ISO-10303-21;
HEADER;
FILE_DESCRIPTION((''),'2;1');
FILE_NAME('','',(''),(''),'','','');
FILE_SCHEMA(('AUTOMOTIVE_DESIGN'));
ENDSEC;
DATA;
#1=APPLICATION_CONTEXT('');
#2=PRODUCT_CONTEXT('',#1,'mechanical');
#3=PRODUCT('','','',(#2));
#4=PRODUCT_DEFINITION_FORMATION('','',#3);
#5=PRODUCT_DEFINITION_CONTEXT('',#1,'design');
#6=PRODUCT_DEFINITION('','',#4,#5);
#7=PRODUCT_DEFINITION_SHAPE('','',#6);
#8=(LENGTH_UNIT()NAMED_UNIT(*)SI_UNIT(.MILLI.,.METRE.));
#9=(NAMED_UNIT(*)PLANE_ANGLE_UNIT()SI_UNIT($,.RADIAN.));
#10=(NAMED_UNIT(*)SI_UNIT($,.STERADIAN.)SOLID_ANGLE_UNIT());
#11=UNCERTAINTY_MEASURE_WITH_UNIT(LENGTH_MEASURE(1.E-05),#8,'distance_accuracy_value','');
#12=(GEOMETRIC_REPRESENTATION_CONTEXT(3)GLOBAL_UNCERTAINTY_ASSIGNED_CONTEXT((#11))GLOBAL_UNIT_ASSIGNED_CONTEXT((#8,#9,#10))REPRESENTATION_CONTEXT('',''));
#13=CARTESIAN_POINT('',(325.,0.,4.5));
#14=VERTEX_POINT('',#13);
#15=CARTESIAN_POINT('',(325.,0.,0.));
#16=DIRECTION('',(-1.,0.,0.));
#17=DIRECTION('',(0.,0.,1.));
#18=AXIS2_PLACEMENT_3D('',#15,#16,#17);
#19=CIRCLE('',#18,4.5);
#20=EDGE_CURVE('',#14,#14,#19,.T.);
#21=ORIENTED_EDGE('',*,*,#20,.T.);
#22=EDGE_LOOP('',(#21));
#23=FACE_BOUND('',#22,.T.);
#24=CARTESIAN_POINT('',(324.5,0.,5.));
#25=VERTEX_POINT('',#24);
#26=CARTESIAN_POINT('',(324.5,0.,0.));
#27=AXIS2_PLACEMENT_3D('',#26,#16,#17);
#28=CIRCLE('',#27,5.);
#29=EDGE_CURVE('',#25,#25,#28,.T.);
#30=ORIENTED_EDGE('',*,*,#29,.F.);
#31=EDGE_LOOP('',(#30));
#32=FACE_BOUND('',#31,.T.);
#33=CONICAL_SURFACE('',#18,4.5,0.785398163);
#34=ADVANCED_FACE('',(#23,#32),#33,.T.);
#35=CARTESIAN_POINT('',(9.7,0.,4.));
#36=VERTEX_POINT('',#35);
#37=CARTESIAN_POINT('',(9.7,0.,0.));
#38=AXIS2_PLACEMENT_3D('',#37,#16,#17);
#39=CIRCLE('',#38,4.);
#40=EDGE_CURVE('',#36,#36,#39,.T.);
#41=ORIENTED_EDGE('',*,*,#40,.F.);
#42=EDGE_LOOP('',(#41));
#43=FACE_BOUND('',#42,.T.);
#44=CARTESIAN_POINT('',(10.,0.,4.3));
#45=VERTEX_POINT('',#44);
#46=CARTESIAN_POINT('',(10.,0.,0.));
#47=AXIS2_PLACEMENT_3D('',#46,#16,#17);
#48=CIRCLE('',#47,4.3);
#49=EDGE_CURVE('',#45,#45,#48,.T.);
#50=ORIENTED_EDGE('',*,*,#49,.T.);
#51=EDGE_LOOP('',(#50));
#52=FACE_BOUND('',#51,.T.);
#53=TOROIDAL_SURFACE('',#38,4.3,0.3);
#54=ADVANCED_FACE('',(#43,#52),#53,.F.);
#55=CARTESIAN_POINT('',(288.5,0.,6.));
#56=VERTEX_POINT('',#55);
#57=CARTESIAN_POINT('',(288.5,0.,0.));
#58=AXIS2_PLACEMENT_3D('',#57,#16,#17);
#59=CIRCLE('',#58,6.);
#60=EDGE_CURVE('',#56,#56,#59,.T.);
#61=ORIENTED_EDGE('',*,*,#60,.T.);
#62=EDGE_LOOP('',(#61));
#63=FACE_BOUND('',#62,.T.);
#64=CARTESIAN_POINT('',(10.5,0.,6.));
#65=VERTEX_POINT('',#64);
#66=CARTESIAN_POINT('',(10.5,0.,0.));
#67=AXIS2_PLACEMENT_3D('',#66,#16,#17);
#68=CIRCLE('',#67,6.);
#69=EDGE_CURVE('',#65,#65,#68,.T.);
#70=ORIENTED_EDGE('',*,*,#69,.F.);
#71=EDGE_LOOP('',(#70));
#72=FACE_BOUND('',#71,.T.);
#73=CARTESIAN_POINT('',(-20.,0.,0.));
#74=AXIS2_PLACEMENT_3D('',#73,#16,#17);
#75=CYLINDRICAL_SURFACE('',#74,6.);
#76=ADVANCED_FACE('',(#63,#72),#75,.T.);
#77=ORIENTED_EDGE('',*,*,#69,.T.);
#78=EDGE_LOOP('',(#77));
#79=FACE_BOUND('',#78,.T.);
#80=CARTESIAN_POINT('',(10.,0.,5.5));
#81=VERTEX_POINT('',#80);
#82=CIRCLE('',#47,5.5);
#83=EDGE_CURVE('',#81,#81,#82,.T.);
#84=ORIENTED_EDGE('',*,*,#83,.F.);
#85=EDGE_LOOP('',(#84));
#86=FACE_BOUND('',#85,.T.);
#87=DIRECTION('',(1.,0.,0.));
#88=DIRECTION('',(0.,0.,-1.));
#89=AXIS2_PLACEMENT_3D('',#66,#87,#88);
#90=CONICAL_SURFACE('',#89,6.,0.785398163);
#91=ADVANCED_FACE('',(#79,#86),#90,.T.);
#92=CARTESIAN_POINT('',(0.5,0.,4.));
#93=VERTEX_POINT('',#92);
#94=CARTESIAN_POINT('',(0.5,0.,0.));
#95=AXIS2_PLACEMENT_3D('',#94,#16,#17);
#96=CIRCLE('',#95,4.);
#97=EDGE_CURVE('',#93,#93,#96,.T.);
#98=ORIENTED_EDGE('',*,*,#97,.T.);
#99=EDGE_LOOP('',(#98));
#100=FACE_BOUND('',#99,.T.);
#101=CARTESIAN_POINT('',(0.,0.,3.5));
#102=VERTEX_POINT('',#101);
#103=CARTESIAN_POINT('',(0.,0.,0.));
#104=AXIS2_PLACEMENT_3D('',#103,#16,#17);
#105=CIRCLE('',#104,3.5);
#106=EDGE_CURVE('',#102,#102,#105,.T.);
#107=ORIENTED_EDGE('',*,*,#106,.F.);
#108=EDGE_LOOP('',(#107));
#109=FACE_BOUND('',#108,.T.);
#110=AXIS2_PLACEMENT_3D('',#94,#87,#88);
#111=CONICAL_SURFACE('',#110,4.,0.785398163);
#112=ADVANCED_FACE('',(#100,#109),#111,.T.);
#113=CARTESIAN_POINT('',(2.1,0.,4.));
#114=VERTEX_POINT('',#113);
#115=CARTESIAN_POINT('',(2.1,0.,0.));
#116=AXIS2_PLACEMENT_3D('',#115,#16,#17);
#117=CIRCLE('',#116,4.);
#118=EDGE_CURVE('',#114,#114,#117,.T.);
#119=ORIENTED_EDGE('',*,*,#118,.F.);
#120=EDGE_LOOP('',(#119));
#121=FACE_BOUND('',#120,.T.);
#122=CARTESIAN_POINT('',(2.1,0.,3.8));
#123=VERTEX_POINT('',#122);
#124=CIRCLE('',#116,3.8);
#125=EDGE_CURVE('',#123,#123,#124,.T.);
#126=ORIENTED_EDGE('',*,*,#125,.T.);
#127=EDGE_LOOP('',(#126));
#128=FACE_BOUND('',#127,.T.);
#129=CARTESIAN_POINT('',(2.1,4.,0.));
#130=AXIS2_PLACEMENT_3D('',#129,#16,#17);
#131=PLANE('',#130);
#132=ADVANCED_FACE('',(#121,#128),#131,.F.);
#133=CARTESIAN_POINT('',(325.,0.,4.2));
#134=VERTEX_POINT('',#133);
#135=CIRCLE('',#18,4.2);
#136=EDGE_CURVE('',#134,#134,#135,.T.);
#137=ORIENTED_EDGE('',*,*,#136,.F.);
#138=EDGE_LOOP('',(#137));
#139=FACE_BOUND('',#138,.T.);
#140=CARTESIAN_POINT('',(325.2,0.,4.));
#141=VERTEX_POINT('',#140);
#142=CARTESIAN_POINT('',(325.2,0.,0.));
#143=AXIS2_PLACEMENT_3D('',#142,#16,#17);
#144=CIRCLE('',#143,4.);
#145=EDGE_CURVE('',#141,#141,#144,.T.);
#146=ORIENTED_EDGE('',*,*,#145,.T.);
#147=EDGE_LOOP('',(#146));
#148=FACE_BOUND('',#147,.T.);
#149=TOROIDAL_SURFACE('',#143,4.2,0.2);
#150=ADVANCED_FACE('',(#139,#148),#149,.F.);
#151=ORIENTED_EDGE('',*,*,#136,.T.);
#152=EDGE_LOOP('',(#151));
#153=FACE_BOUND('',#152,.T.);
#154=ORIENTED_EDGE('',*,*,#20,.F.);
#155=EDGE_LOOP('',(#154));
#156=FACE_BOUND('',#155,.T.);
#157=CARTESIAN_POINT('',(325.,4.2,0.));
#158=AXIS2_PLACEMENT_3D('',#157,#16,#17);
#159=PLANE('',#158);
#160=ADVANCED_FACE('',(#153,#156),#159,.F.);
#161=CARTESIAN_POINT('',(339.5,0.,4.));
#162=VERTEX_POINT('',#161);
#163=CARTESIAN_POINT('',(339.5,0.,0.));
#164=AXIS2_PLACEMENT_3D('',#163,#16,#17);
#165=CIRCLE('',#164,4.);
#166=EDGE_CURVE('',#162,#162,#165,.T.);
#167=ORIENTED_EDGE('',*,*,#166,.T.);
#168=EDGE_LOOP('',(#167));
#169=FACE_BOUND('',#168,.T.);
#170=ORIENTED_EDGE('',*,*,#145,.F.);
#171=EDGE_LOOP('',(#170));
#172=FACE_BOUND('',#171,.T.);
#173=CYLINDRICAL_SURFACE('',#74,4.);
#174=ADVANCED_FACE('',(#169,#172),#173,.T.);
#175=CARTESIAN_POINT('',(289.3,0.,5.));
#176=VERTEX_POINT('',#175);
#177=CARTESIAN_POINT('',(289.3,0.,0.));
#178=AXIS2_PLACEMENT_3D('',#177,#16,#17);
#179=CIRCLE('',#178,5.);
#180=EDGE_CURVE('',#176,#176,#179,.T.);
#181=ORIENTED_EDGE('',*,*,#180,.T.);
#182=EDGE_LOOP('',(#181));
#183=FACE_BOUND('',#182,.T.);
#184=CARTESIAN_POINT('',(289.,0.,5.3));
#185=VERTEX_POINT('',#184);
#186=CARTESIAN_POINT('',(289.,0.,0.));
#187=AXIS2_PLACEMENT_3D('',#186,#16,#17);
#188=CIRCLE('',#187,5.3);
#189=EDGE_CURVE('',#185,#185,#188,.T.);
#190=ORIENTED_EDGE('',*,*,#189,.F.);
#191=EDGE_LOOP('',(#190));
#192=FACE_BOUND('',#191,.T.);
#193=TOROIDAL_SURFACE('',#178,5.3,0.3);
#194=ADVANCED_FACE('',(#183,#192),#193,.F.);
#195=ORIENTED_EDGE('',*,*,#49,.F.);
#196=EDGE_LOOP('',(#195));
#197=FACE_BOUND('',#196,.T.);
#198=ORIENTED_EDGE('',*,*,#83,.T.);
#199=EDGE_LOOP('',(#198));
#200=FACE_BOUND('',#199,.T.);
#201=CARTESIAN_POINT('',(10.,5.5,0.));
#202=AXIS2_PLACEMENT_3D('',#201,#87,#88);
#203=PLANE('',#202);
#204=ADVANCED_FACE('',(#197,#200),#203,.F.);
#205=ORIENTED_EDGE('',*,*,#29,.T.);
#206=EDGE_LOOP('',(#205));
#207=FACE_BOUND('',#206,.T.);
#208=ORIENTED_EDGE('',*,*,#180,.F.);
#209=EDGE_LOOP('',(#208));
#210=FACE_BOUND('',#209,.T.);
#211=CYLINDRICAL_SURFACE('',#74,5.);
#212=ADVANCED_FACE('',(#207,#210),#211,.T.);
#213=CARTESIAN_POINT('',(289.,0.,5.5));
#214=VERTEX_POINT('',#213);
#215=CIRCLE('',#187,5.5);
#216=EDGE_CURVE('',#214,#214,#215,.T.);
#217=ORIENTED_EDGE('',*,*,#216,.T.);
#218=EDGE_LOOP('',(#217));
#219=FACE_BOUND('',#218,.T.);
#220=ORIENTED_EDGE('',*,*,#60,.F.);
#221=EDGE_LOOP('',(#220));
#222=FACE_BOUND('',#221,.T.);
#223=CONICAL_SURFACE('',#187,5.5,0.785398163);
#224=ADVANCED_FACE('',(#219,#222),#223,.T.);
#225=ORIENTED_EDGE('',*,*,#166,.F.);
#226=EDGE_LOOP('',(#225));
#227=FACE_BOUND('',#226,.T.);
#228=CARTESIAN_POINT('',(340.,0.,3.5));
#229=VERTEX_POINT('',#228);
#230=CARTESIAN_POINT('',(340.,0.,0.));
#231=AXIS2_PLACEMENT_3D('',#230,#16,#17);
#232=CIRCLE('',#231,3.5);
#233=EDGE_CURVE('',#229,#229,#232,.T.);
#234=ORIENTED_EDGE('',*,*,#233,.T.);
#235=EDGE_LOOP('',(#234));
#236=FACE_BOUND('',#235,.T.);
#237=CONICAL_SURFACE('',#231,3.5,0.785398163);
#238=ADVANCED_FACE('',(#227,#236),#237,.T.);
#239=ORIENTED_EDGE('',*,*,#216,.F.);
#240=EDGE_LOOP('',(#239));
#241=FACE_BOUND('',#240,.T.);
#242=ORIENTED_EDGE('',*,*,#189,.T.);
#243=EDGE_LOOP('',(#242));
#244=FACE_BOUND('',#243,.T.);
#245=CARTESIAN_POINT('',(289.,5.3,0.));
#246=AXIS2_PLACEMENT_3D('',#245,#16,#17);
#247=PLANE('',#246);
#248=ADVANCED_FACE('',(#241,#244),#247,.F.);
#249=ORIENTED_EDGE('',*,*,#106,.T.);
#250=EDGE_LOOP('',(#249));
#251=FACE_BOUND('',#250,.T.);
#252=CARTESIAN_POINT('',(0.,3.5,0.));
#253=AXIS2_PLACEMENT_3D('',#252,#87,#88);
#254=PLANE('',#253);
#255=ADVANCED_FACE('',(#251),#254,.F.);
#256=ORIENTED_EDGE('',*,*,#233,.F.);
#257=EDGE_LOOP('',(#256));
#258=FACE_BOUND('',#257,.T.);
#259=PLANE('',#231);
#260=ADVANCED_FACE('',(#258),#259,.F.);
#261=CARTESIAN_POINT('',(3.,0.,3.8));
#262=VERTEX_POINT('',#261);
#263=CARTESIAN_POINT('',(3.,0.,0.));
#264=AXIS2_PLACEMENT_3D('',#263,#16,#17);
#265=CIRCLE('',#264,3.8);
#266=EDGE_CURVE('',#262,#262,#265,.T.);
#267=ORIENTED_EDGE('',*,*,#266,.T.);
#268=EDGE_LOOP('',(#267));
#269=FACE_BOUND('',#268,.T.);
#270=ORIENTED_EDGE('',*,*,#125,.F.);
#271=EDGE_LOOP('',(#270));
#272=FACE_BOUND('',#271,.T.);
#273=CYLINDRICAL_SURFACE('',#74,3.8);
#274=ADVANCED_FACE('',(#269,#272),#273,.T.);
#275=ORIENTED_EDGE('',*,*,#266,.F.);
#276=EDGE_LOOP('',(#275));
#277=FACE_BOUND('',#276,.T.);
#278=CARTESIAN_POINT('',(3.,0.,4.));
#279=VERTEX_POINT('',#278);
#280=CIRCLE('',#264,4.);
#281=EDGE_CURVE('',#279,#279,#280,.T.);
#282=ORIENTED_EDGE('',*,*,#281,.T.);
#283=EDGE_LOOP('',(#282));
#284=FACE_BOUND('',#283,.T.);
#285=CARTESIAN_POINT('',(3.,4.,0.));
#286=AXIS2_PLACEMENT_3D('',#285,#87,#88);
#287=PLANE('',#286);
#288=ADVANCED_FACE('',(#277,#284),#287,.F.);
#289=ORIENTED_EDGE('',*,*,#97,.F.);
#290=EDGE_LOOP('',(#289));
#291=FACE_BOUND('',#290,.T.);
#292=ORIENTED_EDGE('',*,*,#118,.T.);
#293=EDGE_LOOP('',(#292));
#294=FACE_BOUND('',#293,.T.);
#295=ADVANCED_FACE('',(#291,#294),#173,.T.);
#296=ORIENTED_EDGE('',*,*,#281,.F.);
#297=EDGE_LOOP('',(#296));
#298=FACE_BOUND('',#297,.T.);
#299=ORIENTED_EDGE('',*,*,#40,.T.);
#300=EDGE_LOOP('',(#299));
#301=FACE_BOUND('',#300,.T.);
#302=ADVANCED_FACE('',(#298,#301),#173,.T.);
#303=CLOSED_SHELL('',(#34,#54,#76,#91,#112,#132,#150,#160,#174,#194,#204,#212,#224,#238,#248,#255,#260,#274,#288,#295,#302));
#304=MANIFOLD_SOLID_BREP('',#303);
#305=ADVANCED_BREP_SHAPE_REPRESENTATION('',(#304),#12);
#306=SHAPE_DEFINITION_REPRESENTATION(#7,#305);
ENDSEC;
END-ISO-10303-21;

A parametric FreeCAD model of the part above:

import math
import FreeCAD as App
import Part
import Sketcher

V = App.Vector

doc = App.newDocument("Part")
body = doc.addObject("PartDesign::Body", "Body")

# Sketch on XY plane
sketch1 = body.newObject("Sketcher::SketchObject", "Sketch")
sketch1.AttachmentSupport = (doc.getObject("XY_Plane"), [""])
sketch1.MapMode = "FlatFace"
sketch1.addGeometry(Part.LineSegment(V(2.1, 3.8, 0), V(2.1, 4, 0)), False)
sketch1.addGeometry(Part.LineSegment(V(2.1, 4, 0), V(0.5, 4, 0)), False)
sketch1.addGeometry(Part.LineSegment(V(0.5, 4, 0), V(0, 3.5, 0)), False)
sketch1.addGeometry(Part.LineSegment(V(0, 3.5, 0), V(0, 0, 0)), False)
sketch1.addGeometry(Part.LineSegment(V(0, 0, 0), V(340, 0, 0)), False)
sketch1.addGeometry(Part.LineSegment(V(340, 0, 0), V(340, 3.5, 0)), False)
sketch1.addGeometry(Part.LineSegment(V(340, 3.5, 0), V(339.5, 4, 0)), False)
sketch1.addGeometry(Part.LineSegment(V(339.5, 4, 0), V(325.2, 4, 0)), False)
sketch1.addGeometry(Part.ArcOfCircle(Part.Circle(V(325.2, 4.2, 0), V(0, 0, 1), 0.2), math.radians(-180), math.radians(-90)), False)
sketch1.addGeometry(Part.LineSegment(V(325, 4.2, 0), V(325, 4.5, 0)), False)
sketch1.addGeometry(Part.LineSegment(V(325, 4.5, 0), V(324.5, 5, 0)), False)
sketch1.addGeometry(Part.LineSegment(V(324.5, 5, 0), V(289.3, 5, 0)), False)
sketch1.addGeometry(Part.ArcOfCircle(Part.Circle(V(289.3, 5.3, 0), V(0, 0, 1), 0.3), math.radians(-180), math.radians(-90)), False)
sketch1.addGeometry(Part.LineSegment(V(289, 5.3, 0), V(289, 5.5, 0)), False)
sketch1.addGeometry(Part.LineSegment(V(289, 5.5, 0), V(288.5, 6, 0)), False)
sketch1.addGeometry(Part.LineSegment(V(288.5, 6, 0), V(10.5, 6, 0)), False)
sketch1.addGeometry(Part.LineSegment(V(10.5, 6, 0), V(10, 5.5, 0)), False)
sketch1.addGeometry(Part.LineSegment(V(10, 5.5, 0), V(10, 4.3, 0)), False)
sketch1.addGeometry(Part.ArcOfCircle(Part.Circle(V(9.7, 4.3, 0), V(0, 0, 1), 0.3), math.radians(-90), math.radians(0)), False)
sketch1.addGeometry(Part.LineSegment(V(9.7, 4, 0), V(3, 4, 0)), False)
sketch1.addGeometry(Part.LineSegment(V(3, 4, 0), V(3, 3.8, 0)), False)
sketch1.addGeometry(Part.LineSegment(V(3, 3.8, 0), V(2.1, 3.8, 0)), False)
sketch1.addConstraint(Sketcher.Constraint("Coincident", 0, 2, 1, 1))
sketch1.addConstraint(Sketcher.Constraint("Coincident", 1, 2, 2, 1))
sketch1.addConstraint(Sketcher.Constraint("Coincident", 2, 2, 3, 1))
sketch1.addConstraint(Sketcher.Constraint("Coincident", 3, 2, 4, 1))
sketch1.addConstraint(Sketcher.Constraint("Coincident", 4, 2, 5, 1))
sketch1.addConstraint(Sketcher.Constraint("Coincident", 5, 2, 6, 1))
sketch1.addConstraint(Sketcher.Constraint("Coincident", 6, 2, 7, 1))
sketch1.addConstraint(Sketcher.Constraint("Tangent", 7, 2, 8, 2))
sketch1.addConstraint(Sketcher.Constraint("Tangent", 8, 1, 9, 1))
sketch1.addConstraint(Sketcher.Constraint("Coincident", 9, 2, 10, 1))
sketch1.addConstraint(Sketcher.Constraint("Coincident", 10, 2, 11, 1))
sketch1.addConstraint(Sketcher.Constraint("Tangent", 11, 2, 12, 2))
sketch1.addConstraint(Sketcher.Constraint("Tangent", 12, 1, 13, 1))
sketch1.addConstraint(Sketcher.Constraint("Coincident", 13, 2, 14, 1))
sketch1.addConstraint(Sketcher.Constraint("Coincident", 14, 2, 15, 1))
sketch1.addConstraint(Sketcher.Constraint("Coincident", 15, 2, 16, 1))
sketch1.addConstraint(Sketcher.Constraint("Coincident", 16, 2, 17, 1))
sketch1.addConstraint(Sketcher.Constraint("Tangent", 17, 2, 18, 2))
sketch1.addConstraint(Sketcher.Constraint("Tangent", 18, 1, 19, 1))
sketch1.addConstraint(Sketcher.Constraint("Coincident", 19, 2, 20, 1))
sketch1.addConstraint(Sketcher.Constraint("Coincident", 20, 2, 21, 1))
sketch1.addConstraint(Sketcher.Constraint("Coincident", 21, 2, 0, 1))
sketch1.addConstraint(Sketcher.Constraint("Vertical", 0))
sketch1.addConstraint(Sketcher.Constraint("Horizontal", 1))
sketch1.addConstraint(Sketcher.Constraint("Vertical", 3))
sketch1.addConstraint(Sketcher.Constraint("Horizontal", 4))
sketch1.addConstraint(Sketcher.Constraint("Vertical", 5))
sketch1.addConstraint(Sketcher.Constraint("Horizontal", 7))
sketch1.addConstraint(Sketcher.Constraint("Vertical", 9))
sketch1.addConstraint(Sketcher.Constraint("Horizontal", 11))
sketch1.addConstraint(Sketcher.Constraint("Vertical", 13))
sketch1.addConstraint(Sketcher.Constraint("Horizontal", 15))
sketch1.addConstraint(Sketcher.Constraint("Vertical", 17))
sketch1.addConstraint(Sketcher.Constraint("Horizontal", 19))
sketch1.addConstraint(Sketcher.Constraint("Vertical", 20))
sketch1.addConstraint(Sketcher.Constraint("Horizontal", 21))
sketch1.addConstraint(Sketcher.Constraint("Coincident", 3, 2, -1, 1))
sketch1.addConstraint(Sketcher.Constraint("Equal", 12, 18))
sketch1.addConstraint(Sketcher.Constraint("Perpendicular", 2, 6))
sketch1.addConstraint(Sketcher.Constraint("Parallel", 6, 10))
sketch1.addConstraint(Sketcher.Constraint("Parallel", 10, 14))
sketch1.addConstraint(Sketcher.Constraint("Perpendicular", 14, 16))
sketch1.addConstraint(Sketcher.Constraint("Horizontal", 2, 2, 5, 2))
sketch1.addConstraint(Sketcher.Constraint("Horizontal", 1, 2, 6, 2))
sketch1.addConstraint(Sketcher.Constraint("Horizontal", 13, 2, 16, 2))
sketch1.addConstraint(Sketcher.Constraint("Horizontal", 7, 2, 18, 1))
sketch1.addConstraint(Sketcher.Constraint("Equal", 0, 13))
sketch1.addConstraint(Sketcher.Constraint("Equal", 2, 6))
sketch1.addConstraint(Sketcher.Constraint("Equal", 6, 10))
sketch1.addConstraint(Sketcher.Constraint("Equal", 10, 14))
sketch1.addConstraint(Sketcher.Constraint("Radius", 8, 0.2))
sketch1.addConstraint(Sketcher.Constraint("Radius", 12, 0.3))
sketch1.addConstraint(Sketcher.Constraint("DistanceX", 4, 1, 4, 2, 340.0))
sketch1.addConstraint(Sketcher.Constraint("DistanceX", 15, 2, 15, 1, 278.0))
sketch1.addConstraint(Sketcher.Constraint("DistanceX", 1, 2, 1, 1, 1.6))
sketch1.addConstraint(Sketcher.Constraint("DistanceX", 7, 2, 7, 1, 14.3))
sketch1.addConstraint(Sketcher.Constraint("DistanceX", 11, 2, 11, 1, 35.2))
sketch1.addConstraint(Sketcher.Constraint("DistanceX", 19, 2, 19, 1, 6.7))
sketch1.addConstraint(Sketcher.Constraint("DistanceX", 21, 2, 21, 1, 0.9))
sketch1.addConstraint(Sketcher.Constraint("DistanceY", 0, 1, 0, 2, 0.2))
sketch1.addConstraint(Sketcher.Constraint("DistanceY", 3, 2, 3, 1, 3.5))
sketch1.addConstraint(Sketcher.Constraint("DistanceY", 9, 1, 9, 2, 0.3))
revolution = body.newObject("PartDesign::Revolution", "Revolution")
revolution.Profile = sketch1
revolution.ReferenceAxis = (sketch1, ["H_Axis"])
revolution.Angle = 360

doc.recompute()
